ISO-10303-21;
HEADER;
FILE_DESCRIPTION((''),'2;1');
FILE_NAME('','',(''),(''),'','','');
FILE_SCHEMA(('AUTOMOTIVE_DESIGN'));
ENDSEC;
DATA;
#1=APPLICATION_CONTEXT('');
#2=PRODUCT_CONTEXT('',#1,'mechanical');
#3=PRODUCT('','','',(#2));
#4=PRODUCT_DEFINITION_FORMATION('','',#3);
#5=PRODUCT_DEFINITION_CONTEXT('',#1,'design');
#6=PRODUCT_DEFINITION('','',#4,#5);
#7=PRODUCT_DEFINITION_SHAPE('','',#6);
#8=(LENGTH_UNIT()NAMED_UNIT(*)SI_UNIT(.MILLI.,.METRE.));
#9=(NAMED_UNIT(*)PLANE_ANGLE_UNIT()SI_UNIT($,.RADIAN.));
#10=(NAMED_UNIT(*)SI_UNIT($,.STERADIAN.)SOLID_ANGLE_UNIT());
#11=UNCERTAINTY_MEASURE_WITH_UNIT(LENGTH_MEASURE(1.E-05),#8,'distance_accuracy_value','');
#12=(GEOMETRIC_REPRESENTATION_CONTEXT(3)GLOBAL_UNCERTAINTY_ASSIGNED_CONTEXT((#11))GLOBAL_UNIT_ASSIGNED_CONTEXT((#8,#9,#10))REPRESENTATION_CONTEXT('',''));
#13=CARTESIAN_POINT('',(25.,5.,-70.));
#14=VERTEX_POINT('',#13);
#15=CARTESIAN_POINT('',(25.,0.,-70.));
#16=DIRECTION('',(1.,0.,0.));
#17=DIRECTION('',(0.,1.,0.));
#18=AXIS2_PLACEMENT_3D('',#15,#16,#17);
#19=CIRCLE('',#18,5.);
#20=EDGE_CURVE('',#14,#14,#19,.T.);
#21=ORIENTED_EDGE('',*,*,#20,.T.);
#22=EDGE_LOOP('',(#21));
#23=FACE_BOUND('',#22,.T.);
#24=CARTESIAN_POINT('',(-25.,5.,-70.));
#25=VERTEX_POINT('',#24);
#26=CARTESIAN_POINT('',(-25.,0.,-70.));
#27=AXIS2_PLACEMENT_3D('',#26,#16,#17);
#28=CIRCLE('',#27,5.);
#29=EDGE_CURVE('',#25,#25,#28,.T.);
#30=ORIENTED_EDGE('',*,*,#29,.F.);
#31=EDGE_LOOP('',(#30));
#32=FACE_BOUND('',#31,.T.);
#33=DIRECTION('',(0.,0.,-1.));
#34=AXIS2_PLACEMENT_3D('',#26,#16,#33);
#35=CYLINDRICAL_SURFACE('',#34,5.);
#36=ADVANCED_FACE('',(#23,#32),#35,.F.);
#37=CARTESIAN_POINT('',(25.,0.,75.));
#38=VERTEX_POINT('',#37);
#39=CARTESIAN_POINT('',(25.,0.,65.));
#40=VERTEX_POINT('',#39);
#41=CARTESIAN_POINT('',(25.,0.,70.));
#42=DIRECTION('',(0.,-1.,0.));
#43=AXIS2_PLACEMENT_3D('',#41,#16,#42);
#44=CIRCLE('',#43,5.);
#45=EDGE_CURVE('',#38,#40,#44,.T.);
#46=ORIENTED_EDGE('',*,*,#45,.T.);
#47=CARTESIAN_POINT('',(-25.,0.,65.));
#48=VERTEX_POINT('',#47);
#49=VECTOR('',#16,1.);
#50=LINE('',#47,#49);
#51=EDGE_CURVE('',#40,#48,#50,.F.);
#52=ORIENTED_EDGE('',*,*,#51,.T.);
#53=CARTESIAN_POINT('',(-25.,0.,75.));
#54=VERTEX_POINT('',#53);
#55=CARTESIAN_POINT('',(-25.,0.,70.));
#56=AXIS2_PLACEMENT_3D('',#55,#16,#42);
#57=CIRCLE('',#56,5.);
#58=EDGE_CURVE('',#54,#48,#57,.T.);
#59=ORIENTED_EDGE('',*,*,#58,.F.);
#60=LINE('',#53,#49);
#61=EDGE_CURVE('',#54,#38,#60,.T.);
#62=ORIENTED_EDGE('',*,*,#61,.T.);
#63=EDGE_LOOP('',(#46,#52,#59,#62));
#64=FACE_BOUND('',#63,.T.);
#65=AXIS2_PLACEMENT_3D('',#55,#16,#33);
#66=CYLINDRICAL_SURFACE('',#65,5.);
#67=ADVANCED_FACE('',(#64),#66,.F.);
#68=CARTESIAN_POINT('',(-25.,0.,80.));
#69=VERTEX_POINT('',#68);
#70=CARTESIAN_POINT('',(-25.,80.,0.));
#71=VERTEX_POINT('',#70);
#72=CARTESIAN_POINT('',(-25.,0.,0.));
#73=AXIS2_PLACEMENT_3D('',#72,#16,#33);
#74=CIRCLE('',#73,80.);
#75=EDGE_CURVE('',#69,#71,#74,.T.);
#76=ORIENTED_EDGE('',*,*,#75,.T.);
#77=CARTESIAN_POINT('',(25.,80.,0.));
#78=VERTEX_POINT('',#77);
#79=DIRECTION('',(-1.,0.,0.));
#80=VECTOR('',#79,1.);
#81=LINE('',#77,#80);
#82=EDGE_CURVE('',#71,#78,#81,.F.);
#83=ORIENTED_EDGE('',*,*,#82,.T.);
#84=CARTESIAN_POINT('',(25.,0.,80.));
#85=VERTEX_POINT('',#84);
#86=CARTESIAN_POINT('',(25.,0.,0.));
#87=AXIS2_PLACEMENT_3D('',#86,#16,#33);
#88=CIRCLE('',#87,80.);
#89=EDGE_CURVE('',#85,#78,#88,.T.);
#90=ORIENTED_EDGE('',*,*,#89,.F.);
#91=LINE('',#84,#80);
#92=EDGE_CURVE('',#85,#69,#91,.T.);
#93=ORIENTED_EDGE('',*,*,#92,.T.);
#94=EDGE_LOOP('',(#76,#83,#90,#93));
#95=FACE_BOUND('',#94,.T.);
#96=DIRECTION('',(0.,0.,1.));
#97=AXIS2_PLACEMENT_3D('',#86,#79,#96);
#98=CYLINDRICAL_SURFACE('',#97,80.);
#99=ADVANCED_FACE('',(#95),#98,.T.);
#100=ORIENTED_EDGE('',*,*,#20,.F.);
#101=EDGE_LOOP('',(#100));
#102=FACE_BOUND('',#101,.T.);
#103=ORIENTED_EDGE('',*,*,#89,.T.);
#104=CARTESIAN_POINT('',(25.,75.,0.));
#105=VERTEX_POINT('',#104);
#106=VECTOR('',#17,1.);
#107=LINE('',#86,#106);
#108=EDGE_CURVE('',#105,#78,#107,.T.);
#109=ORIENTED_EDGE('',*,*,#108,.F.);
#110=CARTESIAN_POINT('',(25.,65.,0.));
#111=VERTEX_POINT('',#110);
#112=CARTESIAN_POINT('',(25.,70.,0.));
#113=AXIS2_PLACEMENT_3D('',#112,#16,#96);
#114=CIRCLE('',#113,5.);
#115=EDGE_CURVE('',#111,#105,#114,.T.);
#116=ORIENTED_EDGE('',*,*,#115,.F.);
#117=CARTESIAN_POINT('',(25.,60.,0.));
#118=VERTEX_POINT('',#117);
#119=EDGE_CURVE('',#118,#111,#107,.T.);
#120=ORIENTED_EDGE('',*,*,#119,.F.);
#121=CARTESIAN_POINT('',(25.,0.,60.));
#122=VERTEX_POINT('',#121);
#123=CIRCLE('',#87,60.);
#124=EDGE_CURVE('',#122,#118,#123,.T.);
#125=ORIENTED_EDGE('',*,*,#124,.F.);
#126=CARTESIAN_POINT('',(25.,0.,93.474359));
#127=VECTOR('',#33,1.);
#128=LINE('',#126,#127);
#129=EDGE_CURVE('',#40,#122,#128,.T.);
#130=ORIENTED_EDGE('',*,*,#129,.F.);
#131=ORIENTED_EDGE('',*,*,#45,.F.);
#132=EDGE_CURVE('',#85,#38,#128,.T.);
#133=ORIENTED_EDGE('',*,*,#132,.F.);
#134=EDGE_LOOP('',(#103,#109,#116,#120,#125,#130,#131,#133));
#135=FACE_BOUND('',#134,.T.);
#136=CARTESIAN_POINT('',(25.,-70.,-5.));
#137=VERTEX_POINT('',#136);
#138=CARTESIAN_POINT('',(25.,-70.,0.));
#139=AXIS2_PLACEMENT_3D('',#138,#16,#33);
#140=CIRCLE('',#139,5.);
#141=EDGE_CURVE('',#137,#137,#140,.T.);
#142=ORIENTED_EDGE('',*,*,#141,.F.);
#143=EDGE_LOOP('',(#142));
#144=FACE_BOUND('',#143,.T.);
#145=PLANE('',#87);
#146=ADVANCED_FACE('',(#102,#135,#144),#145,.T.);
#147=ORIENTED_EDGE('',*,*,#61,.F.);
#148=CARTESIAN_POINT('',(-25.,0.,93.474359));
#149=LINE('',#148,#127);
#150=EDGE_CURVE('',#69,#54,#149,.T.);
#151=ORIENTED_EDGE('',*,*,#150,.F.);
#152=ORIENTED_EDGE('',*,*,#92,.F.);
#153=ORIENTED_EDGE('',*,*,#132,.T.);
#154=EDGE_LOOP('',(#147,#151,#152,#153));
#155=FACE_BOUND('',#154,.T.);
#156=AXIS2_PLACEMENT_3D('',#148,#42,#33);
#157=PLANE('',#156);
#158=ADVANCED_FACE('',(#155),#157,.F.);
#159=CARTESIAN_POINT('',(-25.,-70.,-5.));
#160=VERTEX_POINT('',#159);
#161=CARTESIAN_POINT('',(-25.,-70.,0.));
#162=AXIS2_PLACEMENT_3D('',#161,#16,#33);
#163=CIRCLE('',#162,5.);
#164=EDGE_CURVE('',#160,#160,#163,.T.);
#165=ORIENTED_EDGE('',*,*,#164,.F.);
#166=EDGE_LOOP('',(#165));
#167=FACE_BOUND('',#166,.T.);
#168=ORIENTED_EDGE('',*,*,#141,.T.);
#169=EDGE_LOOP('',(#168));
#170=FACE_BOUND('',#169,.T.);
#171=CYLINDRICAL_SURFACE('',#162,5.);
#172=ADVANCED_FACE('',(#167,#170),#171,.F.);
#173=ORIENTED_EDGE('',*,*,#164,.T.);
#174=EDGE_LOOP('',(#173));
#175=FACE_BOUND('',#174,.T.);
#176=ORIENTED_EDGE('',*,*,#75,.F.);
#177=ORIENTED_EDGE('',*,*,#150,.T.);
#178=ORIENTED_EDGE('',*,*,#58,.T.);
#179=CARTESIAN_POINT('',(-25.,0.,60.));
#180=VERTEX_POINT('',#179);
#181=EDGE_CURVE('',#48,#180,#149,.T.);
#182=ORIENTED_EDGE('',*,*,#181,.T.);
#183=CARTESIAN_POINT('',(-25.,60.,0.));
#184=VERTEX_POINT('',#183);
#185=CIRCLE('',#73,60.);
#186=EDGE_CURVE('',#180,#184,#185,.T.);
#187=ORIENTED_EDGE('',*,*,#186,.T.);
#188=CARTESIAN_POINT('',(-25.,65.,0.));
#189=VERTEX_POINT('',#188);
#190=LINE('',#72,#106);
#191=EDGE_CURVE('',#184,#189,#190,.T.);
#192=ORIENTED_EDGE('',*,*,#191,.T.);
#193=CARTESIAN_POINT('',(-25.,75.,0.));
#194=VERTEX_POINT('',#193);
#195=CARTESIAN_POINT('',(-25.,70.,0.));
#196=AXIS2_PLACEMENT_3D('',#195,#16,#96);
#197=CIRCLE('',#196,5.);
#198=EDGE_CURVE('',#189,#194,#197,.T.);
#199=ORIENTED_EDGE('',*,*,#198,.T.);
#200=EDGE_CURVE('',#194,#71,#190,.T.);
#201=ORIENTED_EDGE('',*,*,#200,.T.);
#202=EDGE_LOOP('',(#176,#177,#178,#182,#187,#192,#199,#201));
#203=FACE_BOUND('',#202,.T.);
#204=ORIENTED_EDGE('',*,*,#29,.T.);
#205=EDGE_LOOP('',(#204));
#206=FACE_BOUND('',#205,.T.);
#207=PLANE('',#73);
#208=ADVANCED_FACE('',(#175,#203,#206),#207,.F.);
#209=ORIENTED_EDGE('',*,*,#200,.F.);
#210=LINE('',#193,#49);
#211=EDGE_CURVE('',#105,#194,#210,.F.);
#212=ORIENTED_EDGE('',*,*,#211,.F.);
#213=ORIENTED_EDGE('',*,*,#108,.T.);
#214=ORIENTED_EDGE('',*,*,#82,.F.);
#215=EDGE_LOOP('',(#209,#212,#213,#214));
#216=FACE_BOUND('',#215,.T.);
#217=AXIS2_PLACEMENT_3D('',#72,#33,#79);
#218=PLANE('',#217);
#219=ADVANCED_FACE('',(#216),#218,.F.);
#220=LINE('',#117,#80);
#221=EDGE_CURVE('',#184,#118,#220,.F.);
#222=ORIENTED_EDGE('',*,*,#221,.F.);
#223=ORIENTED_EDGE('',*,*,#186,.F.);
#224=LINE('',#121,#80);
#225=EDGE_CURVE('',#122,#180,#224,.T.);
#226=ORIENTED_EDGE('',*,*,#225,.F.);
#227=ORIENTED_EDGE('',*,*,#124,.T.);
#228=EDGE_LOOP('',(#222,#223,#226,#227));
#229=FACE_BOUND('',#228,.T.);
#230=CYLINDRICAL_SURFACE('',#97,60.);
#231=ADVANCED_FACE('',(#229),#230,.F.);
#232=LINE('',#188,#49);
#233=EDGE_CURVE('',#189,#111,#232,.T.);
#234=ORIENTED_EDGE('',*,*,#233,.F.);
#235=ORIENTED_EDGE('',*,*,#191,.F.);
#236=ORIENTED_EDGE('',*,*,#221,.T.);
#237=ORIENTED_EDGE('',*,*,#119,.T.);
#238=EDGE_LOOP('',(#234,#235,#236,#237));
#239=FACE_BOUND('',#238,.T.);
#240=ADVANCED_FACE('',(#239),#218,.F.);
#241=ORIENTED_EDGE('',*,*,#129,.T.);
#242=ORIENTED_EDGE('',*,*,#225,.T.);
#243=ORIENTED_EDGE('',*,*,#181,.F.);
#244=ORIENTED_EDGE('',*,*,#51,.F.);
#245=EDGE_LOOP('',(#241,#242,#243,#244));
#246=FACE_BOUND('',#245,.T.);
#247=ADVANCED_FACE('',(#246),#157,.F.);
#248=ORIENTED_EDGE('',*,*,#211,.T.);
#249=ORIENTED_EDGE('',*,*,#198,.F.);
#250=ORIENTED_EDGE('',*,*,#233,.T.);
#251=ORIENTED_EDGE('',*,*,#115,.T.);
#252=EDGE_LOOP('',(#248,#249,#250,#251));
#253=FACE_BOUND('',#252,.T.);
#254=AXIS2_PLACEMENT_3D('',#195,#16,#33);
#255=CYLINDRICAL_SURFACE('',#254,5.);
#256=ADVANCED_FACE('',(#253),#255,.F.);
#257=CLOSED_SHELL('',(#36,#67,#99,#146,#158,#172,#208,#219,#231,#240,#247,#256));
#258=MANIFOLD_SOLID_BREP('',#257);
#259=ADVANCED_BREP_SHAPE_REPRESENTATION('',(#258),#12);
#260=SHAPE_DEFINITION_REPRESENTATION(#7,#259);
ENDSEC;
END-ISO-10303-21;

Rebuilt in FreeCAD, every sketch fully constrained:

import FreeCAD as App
import Part
import Sketcher
from FreeCAD import Vector

doc = App.newDocument("Part")
params = doc.addObject("Spreadsheet::Sheet", "Params")
for row, (alias, value) in enumerate([
    ("sketch1_diameter", "160 mm"),
    ("sketch1_diameter2", "120 mm"),
    ("pad1_length", "50 mm"),
    ("sketch2_diameter", "10 mm"),
], start=1):
    params.set(f"A{row}", alias)
    params.set(f"B{row}", "=" + value)
    params.setAlias(f"B{row}", alias)

body = doc.addObject("PartDesign::Body", "Body")

# Sketch on YZ plane
sketch1 = doc.addObject("Sketcher::SketchObject", "Sketch")
body.addObject(sketch1)
sketch1.AttachmentSupport = (doc.YZ_Plane, [""])
sketch1.MapMode = "FlatFace"
sketch1.addGeometry(Part.Circle(Vector(0, 0, 0), Vector(0, 0, 1), 80), False)
sketch1.addGeometry(Part.Circle(Vector(0, 0, 0), Vector(0, 0, 1), 60), False)
sketch1.addConstraint(Sketcher.Constraint("Coincident", 0, 3, -1, 1))
sketch1.addConstraint(Sketcher.Constraint("Coincident", 1, 3, -1, 1))
sketch1.addConstraint(Sketcher.Constraint("Diameter", 0, 160.0))
sketch1.addConstraint(Sketcher.Constraint("Diameter", 1, 120.0))
sketch1.setExpression("Constraints[2]", "Params.sketch1_diameter")
sketch1.setExpression("Constraints[3]", "Params.sketch1_diameter2")
pad1 = doc.addObject("PartDesign::Pad", "Pad")
body.addObject(pad1)
pad1.Profile = sketch1
pad1.setExpression("Length", "Params.pad1_length")
pad1.Midplane = True

# Sketch on YZ plane
sketch2 = doc.addObject("Sketcher::SketchObject", "Sketch001")
body.addObject(sketch2)
sketch2.AttachmentSupport = (doc.YZ_Plane, [""])
sketch2.MapMode = "FlatFace"
sketch2.AttachmentOffset = App.Placement(Vector(0, 0, 25), App.Rotation())
sketch2.addGeometry(Part.Circle(Vector(-70, 0, 0), Vector(0, 0, 1), 5), False)
sketch2.addConstraint(Sketcher.Constraint("PointOnObject", 0, 3, -1))
sketch2.addConstraint(Sketcher.Constraint("Diameter", 0, 10.0))
sketch2.addConstraint(Sketcher.Constraint("DistanceX", 0, 3, -1, 1, 70.0))
sketch2.setExpression("Constraints[1]", "Params.sketch2_diameter")
pocket1 = doc.addObject("PartDesign::Pocket", "Pocket")
body.addObject(pocket1)
pocket1.Profile = sketch2
pocket1.Type = "ThroughAll"
doc.recompute()

polarpattern = doc.addObject("PartDesign::PolarPattern", "PolarPattern")
body.addObject(polarpattern)
polarpattern.Originals = [pocket1]
polarpattern.Axis = (doc.X_Axis, [""])
polarpattern.Angle = 360
polarpattern.Occurrences = 4
body.Tip = polarpattern

# Sketch on YZ plane
sketch3 = doc.addObject("Sketcher::SketchObject", "Sketch002")
body.addObject(sketch3)
sketch3.AttachmentSupport = (doc.YZ_Plane, [""])
sketch3.MapMode = "FlatFace"
sketch3.AttachmentOffset = App.Placement(Vector(0, 0, 25), App.Rotation())
sketch3.addGeometry(Part.LineSegment(Vector(0, 93.474359, 0), Vector(0, 0, 0)), False)
sketch3.addGeometry(Part.LineSegment(Vector(0, 0, 0), Vector(100.664694, 0, 0)), False)
sketch3.addGeometry(Part.LineSegment(Vector(100.664694, 0, 0), Vector(100.664694, 96.534076, 0)), False)
sketch3.addGeometry(Part.LineSegment(Vector(100.664694, 96.534076, 0), Vector(0, 93.474359, 0)), False)
sketch3.addConstraint(Sketcher.Constraint("Coincident", 0, 2, 1, 1))
sketch3.addConstraint(Sketcher.Constraint("Coincident", 1, 2, 2, 1))
sketch3.addConstraint(Sketcher.Constraint("Coincident", 2, 2, 3, 1))
sketch3.addConstraint(Sketcher.Constraint("Coincident", 3, 2, 0, 1))
sketch3.addConstraint(Sketcher.Constraint("Vertical", 0))
sketch3.addConstraint(Sketcher.Constraint("Horizontal", 1))
sketch3.addConstraint(Sketcher.Constraint("Vertical", 2))
sketch3.addConstraint(Sketcher.Constraint("Coincident", 0, 2, -1, 1))
sketch3.addConstraint(Sketcher.Constraint("DistanceY", 0, 2, 0, 1, 93.474359))
sketch3.addConstraint(Sketcher.Constraint("DistanceX", 1, 1, 1, 2, 100.664694))
sketch3.addConstraint(Sketcher.Constraint("DistanceY", 2, 1, 2, 2, 96.534076))
pocket2 = doc.addObject("PartDesign::Pocket", "Pocket001")
body.addObject(pocket2)
pocket2.Profile = sketch3
pocket2.Type = "ThroughAll"

doc.recompute()
